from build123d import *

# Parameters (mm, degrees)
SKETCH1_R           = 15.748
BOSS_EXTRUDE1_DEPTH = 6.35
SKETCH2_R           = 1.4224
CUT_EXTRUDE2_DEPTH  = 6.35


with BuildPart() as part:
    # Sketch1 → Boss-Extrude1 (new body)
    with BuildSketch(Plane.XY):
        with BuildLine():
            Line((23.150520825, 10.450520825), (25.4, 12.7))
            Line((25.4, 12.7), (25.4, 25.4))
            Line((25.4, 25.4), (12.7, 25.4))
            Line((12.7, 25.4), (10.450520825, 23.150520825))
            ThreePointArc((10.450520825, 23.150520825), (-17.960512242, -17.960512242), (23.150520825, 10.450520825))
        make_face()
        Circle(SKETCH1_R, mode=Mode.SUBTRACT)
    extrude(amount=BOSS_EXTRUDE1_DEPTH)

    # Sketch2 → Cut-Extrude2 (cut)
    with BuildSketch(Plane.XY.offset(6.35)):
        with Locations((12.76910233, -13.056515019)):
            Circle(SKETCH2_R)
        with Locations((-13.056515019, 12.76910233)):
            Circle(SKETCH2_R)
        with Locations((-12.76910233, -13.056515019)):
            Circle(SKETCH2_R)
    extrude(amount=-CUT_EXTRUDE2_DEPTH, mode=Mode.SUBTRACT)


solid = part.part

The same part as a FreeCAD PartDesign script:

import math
import FreeCAD as App
import Part
import Sketcher
Q = App.Units.Quantity

doc = App.newDocument("Part")
body = doc.addObject("PartDesign::Body", "Body")

sketch1 = body.newObject("Sketcher::SketchObject", "Sketch")
sketch1.AttachmentSupport = (doc.getObject("XY_Plane"), [""])
sketch1.MapMode = "FlatFace"
sketch1.addGeometry([
    Part.LineSegment(App.Vector(23.2, 10.5, 0), App.Vector(25.4, 12.7, 0)),
    Part.LineSegment(App.Vector(25.4, 12.7, 0), App.Vector(25.4, 25.4, 0)),
    Part.LineSegment(App.Vector(25.4, 25.4, 0), App.Vector(12.7, 25.4, 0)),
    Part.LineSegment(App.Vector(12.7, 25.4, 0), App.Vector(10.5, 23.2, 0)),
    Part.ArcOfCircle(Part.Circle(App.Vector(0, 0, 0), App.Vector(0, 0, 1), 25.4), math.radians(66), math.radians(384)),
    Part.Circle(App.Vector(0, 0, 0), App.Vector(0, 0, 1), 15.7),
], False)
sketch1.addConstraint([
    Sketcher.Constraint("Coincident", 0, 2, 1, 1),
    Sketcher.Constraint("Coincident", 1, 2, 2, 1),
    Sketcher.Constraint("Coincident", 2, 2, 3, 1),
    Sketcher.Constraint("Coincident", 3, 2, 4, 1),
    Sketcher.Constraint("Coincident", 4, 2, 0, 1),
    Sketcher.Constraint("Vertical", 1),
    Sketcher.Constraint("Horizontal", 2),
    Sketcher.Constraint("Coincident", 4, 3, -1, 1),
    Sketcher.Constraint("Coincident", 5, 3, -1, 1),
    Sketcher.Constraint("Parallel", 0, 3),
    Sketcher.Constraint("Equal", 2, 1),
    Sketcher.Constraint("Equal", 0, 3),
    Sketcher.Constraint("Radius", 4, Q("1 in")),
    Sketcher.Constraint("Diameter", 5, Q("1.24 in")),
    Sketcher.Constraint("DistanceX", 2, 2, 2, 1, Q("0.5 in")),
    Sketcher.Constraint("DistanceX", -1, 1, 0, 2, Q("1 in")),
    Sketcher.Constraint("DistanceY", -1, 1, 1, 2, Q("1 in")),
])
pad1 = body.newObject("PartDesign::Pad", "Pad")
pad1.Profile = sketch1
pad1.Length = Q("0.25 in")

sketch2 = body.newObject("Sketcher::SketchObject", "Sketch001")
sketch2.AttachmentSupport = (doc.getObject("XY_Plane"), [""])
sketch2.MapMode = "FlatFace"
sketch2.AttachmentOffset = App.Placement(App.Vector(0, 0, 0.25 * 25.4), App.Rotation())
sketch2.addGeometry([
    Part.Circle(App.Vector(12.8, -13.1, 0), App.Vector(0, 0, 1), 1.4),
    Part.Circle(App.Vector(-13.1, 12.8, 0), App.Vector(0, 0, 1), 1.4),
    Part.Circle(App.Vector(-12.8, -13.1, 0), App.Vector(0, 0, 1), 1.4),
], False)
sketch2.addConstraint([
    Sketcher.Constraint("Equal", 0, 1),
    Sketcher.Constraint("Equal", 1, 2),
    Sketcher.Constraint("Symmetric", 0, 3, 2, 3, -2),
    Sketcher.Constraint("Diameter", 0, Q("0.112 in")),
    Sketcher.Constraint("DistanceX", -1, 1, 0, 3, 12.769102),
    Sketcher.Constraint("DistanceY", 0, 3, -1, 1, 13.056515),
    Sketcher.Constraint("DistanceX", 1, 3, -1, 1, 13.056515),
    Sketcher.Constraint("DistanceY", -1, 1, 1, 3, 12.769102),
])
pocket1 = body.newObject("PartDesign::Pocket", "Pocket")
pocket1.Profile = sketch2
pocket1.Length = Q("0.25 in")

doc.recompute()
